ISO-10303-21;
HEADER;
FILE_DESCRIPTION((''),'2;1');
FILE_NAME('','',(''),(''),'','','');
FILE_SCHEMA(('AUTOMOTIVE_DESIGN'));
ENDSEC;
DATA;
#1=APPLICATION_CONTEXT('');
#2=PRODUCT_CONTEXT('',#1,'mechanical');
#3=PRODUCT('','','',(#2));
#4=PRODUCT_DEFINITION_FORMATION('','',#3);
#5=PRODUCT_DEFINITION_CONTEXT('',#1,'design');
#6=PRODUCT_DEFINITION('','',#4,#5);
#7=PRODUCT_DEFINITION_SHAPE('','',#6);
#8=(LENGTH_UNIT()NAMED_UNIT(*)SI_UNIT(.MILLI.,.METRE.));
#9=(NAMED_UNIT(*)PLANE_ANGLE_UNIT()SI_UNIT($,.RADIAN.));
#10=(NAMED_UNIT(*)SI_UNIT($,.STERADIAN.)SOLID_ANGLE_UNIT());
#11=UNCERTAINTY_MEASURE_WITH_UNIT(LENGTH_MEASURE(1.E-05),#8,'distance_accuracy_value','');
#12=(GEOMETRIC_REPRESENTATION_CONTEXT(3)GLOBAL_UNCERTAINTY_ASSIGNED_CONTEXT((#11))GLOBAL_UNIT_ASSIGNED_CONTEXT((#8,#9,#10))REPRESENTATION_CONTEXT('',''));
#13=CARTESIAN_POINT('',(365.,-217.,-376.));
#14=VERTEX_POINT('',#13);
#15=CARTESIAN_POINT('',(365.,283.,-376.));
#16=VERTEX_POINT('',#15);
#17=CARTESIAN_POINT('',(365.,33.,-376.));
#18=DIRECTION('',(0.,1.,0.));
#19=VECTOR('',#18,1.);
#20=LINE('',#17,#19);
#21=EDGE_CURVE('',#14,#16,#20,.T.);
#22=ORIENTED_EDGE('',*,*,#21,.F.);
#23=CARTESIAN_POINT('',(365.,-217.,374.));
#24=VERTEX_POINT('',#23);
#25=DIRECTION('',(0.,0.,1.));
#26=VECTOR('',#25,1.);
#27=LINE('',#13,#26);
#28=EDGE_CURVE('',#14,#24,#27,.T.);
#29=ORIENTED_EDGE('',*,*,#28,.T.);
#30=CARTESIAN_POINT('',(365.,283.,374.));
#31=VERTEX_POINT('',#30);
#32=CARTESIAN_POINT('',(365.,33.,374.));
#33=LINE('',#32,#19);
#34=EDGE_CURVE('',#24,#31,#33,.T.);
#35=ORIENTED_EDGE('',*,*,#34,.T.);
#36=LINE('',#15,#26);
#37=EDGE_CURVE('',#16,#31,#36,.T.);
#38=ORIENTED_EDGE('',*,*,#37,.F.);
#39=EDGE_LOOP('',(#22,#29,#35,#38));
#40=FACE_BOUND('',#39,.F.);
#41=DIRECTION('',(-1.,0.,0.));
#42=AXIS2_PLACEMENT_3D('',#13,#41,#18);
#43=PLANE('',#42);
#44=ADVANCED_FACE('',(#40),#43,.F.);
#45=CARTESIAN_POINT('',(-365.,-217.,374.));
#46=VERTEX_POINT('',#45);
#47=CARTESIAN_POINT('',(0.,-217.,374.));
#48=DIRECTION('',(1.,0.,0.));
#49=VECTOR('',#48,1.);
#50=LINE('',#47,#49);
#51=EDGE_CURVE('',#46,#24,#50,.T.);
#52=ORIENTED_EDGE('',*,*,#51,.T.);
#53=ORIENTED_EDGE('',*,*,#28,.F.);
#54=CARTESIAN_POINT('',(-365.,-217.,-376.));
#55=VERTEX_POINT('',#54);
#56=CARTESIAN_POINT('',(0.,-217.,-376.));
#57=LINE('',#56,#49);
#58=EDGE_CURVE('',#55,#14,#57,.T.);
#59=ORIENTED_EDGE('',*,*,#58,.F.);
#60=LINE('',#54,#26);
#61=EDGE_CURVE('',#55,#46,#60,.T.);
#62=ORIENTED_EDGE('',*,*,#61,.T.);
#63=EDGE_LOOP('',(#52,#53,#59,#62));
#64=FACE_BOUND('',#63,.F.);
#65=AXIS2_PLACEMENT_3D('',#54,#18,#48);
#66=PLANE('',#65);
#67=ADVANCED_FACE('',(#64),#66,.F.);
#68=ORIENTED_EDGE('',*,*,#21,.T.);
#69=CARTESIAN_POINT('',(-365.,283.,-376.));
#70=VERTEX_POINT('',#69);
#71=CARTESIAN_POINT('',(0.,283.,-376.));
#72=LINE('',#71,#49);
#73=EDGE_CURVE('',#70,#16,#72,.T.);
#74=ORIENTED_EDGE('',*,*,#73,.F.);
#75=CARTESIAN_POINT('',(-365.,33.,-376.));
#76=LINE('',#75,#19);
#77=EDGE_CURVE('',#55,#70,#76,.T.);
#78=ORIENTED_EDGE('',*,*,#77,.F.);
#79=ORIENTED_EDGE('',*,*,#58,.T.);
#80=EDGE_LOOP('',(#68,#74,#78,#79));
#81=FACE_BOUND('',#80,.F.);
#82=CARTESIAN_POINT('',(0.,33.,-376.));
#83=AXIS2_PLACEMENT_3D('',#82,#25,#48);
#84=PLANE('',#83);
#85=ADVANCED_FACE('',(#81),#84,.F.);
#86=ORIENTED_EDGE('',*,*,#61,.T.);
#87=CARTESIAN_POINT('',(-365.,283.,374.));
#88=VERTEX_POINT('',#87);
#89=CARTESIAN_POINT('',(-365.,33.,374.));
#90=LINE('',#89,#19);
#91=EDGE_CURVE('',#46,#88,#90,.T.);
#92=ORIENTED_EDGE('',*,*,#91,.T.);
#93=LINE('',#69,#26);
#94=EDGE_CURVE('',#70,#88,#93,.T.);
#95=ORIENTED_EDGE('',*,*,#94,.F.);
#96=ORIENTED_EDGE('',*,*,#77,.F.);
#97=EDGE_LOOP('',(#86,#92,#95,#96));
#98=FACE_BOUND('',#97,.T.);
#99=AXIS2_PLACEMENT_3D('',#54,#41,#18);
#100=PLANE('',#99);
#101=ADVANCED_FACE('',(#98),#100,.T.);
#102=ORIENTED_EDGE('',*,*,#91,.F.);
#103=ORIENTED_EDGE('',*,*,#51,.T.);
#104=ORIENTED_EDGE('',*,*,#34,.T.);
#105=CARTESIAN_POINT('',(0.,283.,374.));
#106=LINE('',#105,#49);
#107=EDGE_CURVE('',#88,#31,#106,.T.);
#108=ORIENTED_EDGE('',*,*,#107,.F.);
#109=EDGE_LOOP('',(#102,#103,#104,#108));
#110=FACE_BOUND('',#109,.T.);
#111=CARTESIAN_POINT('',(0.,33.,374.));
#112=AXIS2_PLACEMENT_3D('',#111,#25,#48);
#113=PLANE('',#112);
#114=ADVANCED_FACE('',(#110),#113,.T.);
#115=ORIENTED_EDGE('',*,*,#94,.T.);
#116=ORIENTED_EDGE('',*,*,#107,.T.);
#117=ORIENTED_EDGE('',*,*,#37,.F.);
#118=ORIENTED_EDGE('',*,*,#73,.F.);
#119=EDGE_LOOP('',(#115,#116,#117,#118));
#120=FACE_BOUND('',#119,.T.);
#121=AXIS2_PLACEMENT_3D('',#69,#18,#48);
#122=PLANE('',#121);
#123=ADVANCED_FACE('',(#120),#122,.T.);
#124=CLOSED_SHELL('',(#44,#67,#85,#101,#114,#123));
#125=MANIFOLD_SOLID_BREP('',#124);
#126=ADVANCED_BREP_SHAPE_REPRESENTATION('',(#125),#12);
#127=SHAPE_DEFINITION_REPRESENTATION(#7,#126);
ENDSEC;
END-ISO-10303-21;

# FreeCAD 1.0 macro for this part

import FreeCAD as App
import Part
import Sketcher
Q = App.Units.Quantity

doc = App.newDocument("Part")
params = doc.addObject("Spreadsheet::Sheet", "Params")
for row, (alias, value) in enumerate([
    ("sketch1_width", "730 mm"),
    ("sketch1_height", "500 mm"),
    ("pad1_length", "750 mm"),
], start=1):
    params.set(f"A{row}", alias)
    params.set(f"B{row}", "=" + value)
    params.setAlias(f"B{row}", alias)

body = doc.addObject("PartDesign::Body", "Body")

sketch1 = body.newObject("Sketcher::SketchObject", "Sketch")
sketch1.AttachmentSupport = (doc.getObject("XY_Plane"), [""])
sketch1.MapMode = "FlatFace"
sketch1.AttachmentOffset = App.Placement(App.Vector(0, 0, -376), App.Rotation())
sketch1.addGeometry([
    Part.LineSegment(App.Vector(-365, 283, 0), App.Vector(-365, -217, 0)),
    Part.LineSegment(App.Vector(-365, -217, 0), App.Vector(365, -217, 0)),
    Part.LineSegment(App.Vector(365, -217, 0), App.Vector(365, 283, 0)),
    Part.LineSegment(App.Vector(365, 283, 0), App.Vector(-365, 283, 0)),
], False)
sketch1.addConstraint([
    Sketcher.Constraint("Coincident", 0, 2, 1, 1),
    Sketcher.Constraint("Coincident", 1, 2, 2, 1),
    Sketcher.Constraint("Coincident", 2, 2, 3, 1),
    Sketcher.Constraint("Coincident", 3, 2, 0, 1),
    Sketcher.Constraint("Vertical", 0),
    Sketcher.Constraint("Horizontal", 1),
    Sketcher.Constraint("Vertical", 2),
    Sketcher.Constraint("Horizontal", 3),
    Sketcher.Constraint("DistanceX", 1, 1, 1, 2, Q("730 mm")),
    Sketcher.Constraint("DistanceY", 0, 2, 0, 1, Q("500 mm")),
    Sketcher.Constraint("DistanceX", 0, 2, -1, 1, Q("365 mm")),
    Sketcher.Constraint("DistanceY", 0, 2, -1, 1, Q("217 mm")),
])
sketch1.setExpression("Constraints[8]", "Params.sketch1_width")
sketch1.setExpression("Constraints[9]", "Params.sketch1_height")
pad1 = body.newObject("PartDesign::Pad", "Pad")
pad1.Profile = sketch1
pad1.setExpression("Length", "Params.pad1_length")

doc.recompute()
